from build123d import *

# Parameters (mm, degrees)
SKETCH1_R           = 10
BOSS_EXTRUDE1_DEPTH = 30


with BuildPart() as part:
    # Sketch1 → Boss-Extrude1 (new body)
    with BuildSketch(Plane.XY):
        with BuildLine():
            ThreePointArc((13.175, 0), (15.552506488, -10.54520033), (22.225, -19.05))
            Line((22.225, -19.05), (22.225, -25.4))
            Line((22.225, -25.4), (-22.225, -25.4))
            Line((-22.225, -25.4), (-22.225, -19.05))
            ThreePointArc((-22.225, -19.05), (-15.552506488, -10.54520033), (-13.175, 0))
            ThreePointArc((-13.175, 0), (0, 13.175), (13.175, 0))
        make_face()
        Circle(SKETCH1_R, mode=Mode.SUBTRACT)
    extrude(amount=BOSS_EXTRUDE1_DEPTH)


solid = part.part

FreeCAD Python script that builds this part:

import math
import FreeCAD as App
import Part
import Sketcher
from FreeCAD import Vector

doc = App.newDocument("Part")
body = doc.addObject("PartDesign::Body", "Body")

# Sketch on XY plane
sketch1 = body.newObject("Sketcher::SketchObject", "Sketch")
sketch1.AttachmentSupport = (doc.getObject("XY_Plane"), [""])
sketch1.MapMode = "FlatFace"
sketch1.addGeometry([
    Part.ArcOfCircle(Part.Circle(Vector(38, 0, 0), Vector(0, 0, 1), 25), math.radians(-180), math.radians(-129)),  # 0
    Part.ArcOfCircle(Part.Circle(Vector(0, 0, 0), Vector(0, 0, 1), 13), math.radians(0), math.radians(180)),  # 1
    Part.ArcOfCircle(Part.Circle(Vector(-38, 0, 0), Vector(0, 0, 1), 25), math.radians(-51), math.radians(0)),  # 2
    Part.LineSegment(Vector(-22, -19, 0), Vector(-22, -25, 0)),  # 3
    Part.LineSegment(Vector(-22, -25, 0), Vector(22, -25, 0)),  # 4
    Part.LineSegment(Vector(22, -25, 0), Vector(22, -19, 0)),  # 5
    Part.Circle(Vector(0, 0, 0), Vector(0, 0, 1), 10),  # 6
], False)
sketch1.addConstraint([
    Sketcher.Constraint("Tangent", 0, 1, 1, 1),
    Sketcher.Constraint("Tangent", 1, 2, 2, 2),
    Sketcher.Constraint("Coincident", 2, 1, 3, 1),
    Sketcher.Constraint("Coincident", 3, 2, 4, 1),
    Sketcher.Constraint("Coincident", 4, 2, 5, 1),
    Sketcher.Constraint("Coincident", 5, 2, 0, 2),
    Sketcher.Constraint("Vertical", 3),
    Sketcher.Constraint("Horizontal", 4),
    Sketcher.Constraint("Vertical", 5),
    Sketcher.Constraint("Coincident", 1, 3, -1, 1),
    Sketcher.Constraint("Coincident", 6, 3, -1, 1),
    Sketcher.Constraint("Equal", 0, 2),
    Sketcher.Constraint("Symmetric", 2, 1, 5, 2, -2),
    Sketcher.Constraint("PointOnObject", 0, 3, -1),
    Sketcher.Constraint("Diameter", 6, 20.0),
    Sketcher.Constraint("Radius", 1, 13.175),
    Sketcher.Constraint("DistanceX", 4, 1, 4, 2, 44.45),
    Sketcher.Constraint("DistanceY", 3, 2, 3, 1, 6.35),
    Sketcher.Constraint("DistanceY", 3, 2, -1, 1, 25.4),
])
pad1 = body.newObject("PartDesign::Pad", "Pad")
pad1.Profile = sketch1
pad1.Length = 30

doc.recompute()
